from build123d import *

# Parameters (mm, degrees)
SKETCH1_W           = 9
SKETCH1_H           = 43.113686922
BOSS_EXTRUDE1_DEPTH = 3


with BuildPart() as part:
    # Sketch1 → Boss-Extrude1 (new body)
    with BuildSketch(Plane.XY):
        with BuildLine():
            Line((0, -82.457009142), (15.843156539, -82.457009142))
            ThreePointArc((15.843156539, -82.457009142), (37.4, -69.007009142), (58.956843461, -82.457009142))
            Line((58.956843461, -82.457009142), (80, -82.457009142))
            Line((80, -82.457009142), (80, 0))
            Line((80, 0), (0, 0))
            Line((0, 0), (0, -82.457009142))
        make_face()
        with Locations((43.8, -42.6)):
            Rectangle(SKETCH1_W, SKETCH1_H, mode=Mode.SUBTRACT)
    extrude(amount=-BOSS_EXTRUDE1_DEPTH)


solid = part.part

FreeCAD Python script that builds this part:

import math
import FreeCAD as App
import Part
import Sketcher

V = App.Vector
Q = App.Units.Quantity


def add_polygon(sketch, points):
    """Adds a closed chain of lines whose ends are joined by coincident constraints."""
    first, n = sketch.GeometryCount, len(points)
    for a, b in zip(points, points[1:] + points[:1]):
        sketch.addGeometry(Part.LineSegment(App.Vector(*a, 0), App.Vector(*b, 0)), False)
    for i in range(n):
        sketch.addConstraint(Sketcher.Constraint("Coincident", first + i, 2, first + (i + 1) % n, 1))

doc = App.newDocument("Part")
body = doc.addObject("PartDesign::Body", "Body")

# Sketch on XY plane
sketch1 = body.newObject("Sketcher::SketchObject", "Sketch")
sketch1.AttachmentSupport = (doc.getObject("XY_Plane"), [""])
sketch1.MapMode = "FlatFace"
sketch1.addGeometry(Part.LineSegment(V(0, -82.457009, 0), V(15.843157, -82.457009, 0)), False)  # 0
sketch1.addGeometry(Part.ArcOfCircle(Part.Circle(V(37.4, -93.007009, 0), V(0, 0, 1), 24), math.radians(26.077299), math.radians(153.922701)), False)  # 1
sketch1.addGeometry(Part.LineSegment(V(58.956843, -82.457009, 0), V(80, -82.457009, 0)), False)  # 2
sketch1.addGeometry(Part.LineSegment(V(80, -82.457009, 0), V(80, 0, 0)), False)  # 3
sketch1.addGeometry(Part.LineSegment(V(80, 0, 0), V(0, 0, 0)), False)  # 4
sketch1.addGeometry(Part.LineSegment(V(0, 0, 0), V(0, -82.457009, 0)), False)  # 5
add_polygon(sketch1, [(48.3, -64.156843), (39.3, -64.156843), (39.3, -21.043157), (48.3, -21.043157)])  # lines 6-9
sketch1.addConstraint(Sketcher.Constraint("Coincident", 0, 2, 1, 2))
sketch1.addConstraint(Sketcher.Constraint("Coincident", 1, 1, 2, 1))
sketch1.addConstraint(Sketcher.Constraint("Coincident", 2, 2, 3, 1))
sketch1.addConstraint(Sketcher.Constraint("Coincident", 3, 2, 4, 1))
sketch1.addConstraint(Sketcher.Constraint("Coincident", 4, 2, 5, 1))
sketch1.addConstraint(Sketcher.Constraint("Coincident", 5, 2, 0, 1))
sketch1.addConstraint(Sketcher.Constraint("Horizontal", 0))
sketch1.addConstraint(Sketcher.Constraint("Horizontal", 2))
sketch1.addConstraint(Sketcher.Constraint("Vertical", 3))
sketch1.addConstraint(Sketcher.Constraint("Horizontal", 4))
sketch1.addConstraint(Sketcher.Constraint("Vertical", 5))
sketch1.addConstraint(Sketcher.Constraint("Horizontal", 6))
sketch1.addConstraint(Sketcher.Constraint("Vertical", 7))
sketch1.addConstraint(Sketcher.Constraint("Horizontal", 8))
sketch1.addConstraint(Sketcher.Constraint("Vertical", 9))
sketch1.addConstraint(Sketcher.Constraint("Coincident", 4, 2, -1, 1))
sketch1.addConstraint(Sketcher.Constraint("Horizontal", 0, 2, 1, 1))
sketch1.addConstraint(Sketcher.Constraint("Radius", 1, Q("24 mm")))
sketch1.addConstraint(Sketcher.Constraint("DistanceX", 4, 2, 4, 1, Q("80 mm")))
sketch1.addConstraint(Sketcher.Constraint("DistanceX", 6, 2, 6, 1, Q("9 mm")))
sketch1.addConstraint(Sketcher.Constraint("DistanceX", -1, 1, 1, 3, Q("37.4 mm")))
sketch1.addConstraint(Sketcher.Constraint("DistanceX", -1, 1, 6, 2, Q("39.3 mm")))
sketch1.addConstraint(Sketcher.Constraint("DistanceY", 1, 3, 0, 2, Q("10.55 mm")))
sketch1.addConstraint(Sketcher.Constraint("DistanceY", 3, 1, 3, 2, Q("82.457009 mm")))
sketch1.addConstraint(Sketcher.Constraint("DistanceY", 7, 1, 7, 2, Q("43.113687 mm")))
sketch1.addConstraint(Sketcher.Constraint("DistanceY", 6, 2, -1, 1, Q("64.156843 mm")))
pad1 = body.newObject("PartDesign::Pad", "Pad")
pad1.Profile = sketch1
pad1.Length = 3
pad1.Reversed = True

doc.recompute()
